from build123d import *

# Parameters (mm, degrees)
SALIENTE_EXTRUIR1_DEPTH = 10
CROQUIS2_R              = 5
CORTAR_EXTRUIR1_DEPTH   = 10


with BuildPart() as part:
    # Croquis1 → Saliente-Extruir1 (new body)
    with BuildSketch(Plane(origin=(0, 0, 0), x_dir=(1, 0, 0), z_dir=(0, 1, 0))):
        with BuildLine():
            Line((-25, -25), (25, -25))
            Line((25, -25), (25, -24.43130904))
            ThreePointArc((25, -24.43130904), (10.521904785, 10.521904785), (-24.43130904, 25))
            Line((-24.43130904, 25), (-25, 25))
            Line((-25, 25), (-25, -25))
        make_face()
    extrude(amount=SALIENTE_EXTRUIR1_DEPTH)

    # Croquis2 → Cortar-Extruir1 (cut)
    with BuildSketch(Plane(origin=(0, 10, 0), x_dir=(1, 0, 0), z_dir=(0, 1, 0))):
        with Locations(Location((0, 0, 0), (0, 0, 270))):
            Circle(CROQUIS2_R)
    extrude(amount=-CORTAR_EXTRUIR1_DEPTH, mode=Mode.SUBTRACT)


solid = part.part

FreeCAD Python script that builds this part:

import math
import FreeCAD as App
import Part
import Sketcher

V = App.Vector
Q = App.Units.Quantity

doc = App.newDocument("Part")
body = doc.addObject("PartDesign::Body", "Body")

# Sketch on XZ plane
sketch1 = doc.addObject("Sketcher::SketchObject", "Sketch")
body.addObject(sketch1)
sketch1.AttachmentSupport = (doc.XZ_Plane, [""])
sketch1.MapMode = "FlatFace"
sketch1.addGeometry([
    Part.LineSegment(V(-25, 25, 0), V(25, 25, 0)),  # 0
    Part.LineSegment(V(25, 25, 0), V(25, 24.4, 0)),  # 1
    Part.ArcOfCircle(Part.Circle(V(-24.4, 24.4, 0), V(0, 0, 1), 49.4), math.radians(-90), math.radians(0)),  # 2
    Part.LineSegment(V(-24.4, -25, 0), V(-25, -25, 0)),  # 3
    Part.LineSegment(V(-25, -25, 0), V(-25, 25, 0)),  # 4
], False)
sketch1.addConstraint([
    Sketcher.Constraint("Coincident", 0, 2, 1, 1),
    Sketcher.Constraint("Tangent", 1, 2, 2, 2),
    Sketcher.Constraint("Tangent", 2, 1, 3, 1),
    Sketcher.Constraint("Coincident", 3, 2, 4, 1),
    Sketcher.Constraint("Coincident", 4, 2, 0, 1),
    Sketcher.Constraint("Horizontal", 0),
    Sketcher.Constraint("Vertical", 1),
    Sketcher.Constraint("Horizontal", 3),
    Sketcher.Constraint("Vertical", 4),
    Sketcher.Constraint("Symmetric", 0, 2, 3, 2, -1, 1),
    Sketcher.Constraint("Equal", 3, 1),
    Sketcher.Constraint("DistanceX", 0, 1, 0, 2, Q("50 mm")),
    Sketcher.Constraint("Radius", 2, Q("49.431309 mm")),
])
pad1 = doc.addObject("PartDesign::Pad", "Pad")
body.addObject(pad1)
pad1.Profile = sketch1
pad1.Length = 10
pad1.Reversed = True

# Sketch on XZ plane
sketch2 = doc.addObject("Sketcher::SketchObject", "Sketch001")
body.addObject(sketch2)
sketch2.AttachmentSupport = (doc.XZ_Plane, [""])
sketch2.MapMode = "FlatFace"
sketch2.AttachmentOffset = App.Placement(V(0, 0, -10), App.Rotation())
sketch2.addGeometry(Part.Circle(V(0, 0, 0), V(0, 0, 1), 5), False)
sketch2.addConstraint([
    Sketcher.Constraint("Coincident", 0, 3, -1, 1),
    Sketcher.Constraint("Diameter", 0, Q("10 mm")),
])
pocket1 = doc.addObject("PartDesign::Pocket", "Pocket")
body.addObject(pocket1)
pocket1.Profile = sketch2
pocket1.Length = 10
pocket1.Reversed = True

doc.recompute()
